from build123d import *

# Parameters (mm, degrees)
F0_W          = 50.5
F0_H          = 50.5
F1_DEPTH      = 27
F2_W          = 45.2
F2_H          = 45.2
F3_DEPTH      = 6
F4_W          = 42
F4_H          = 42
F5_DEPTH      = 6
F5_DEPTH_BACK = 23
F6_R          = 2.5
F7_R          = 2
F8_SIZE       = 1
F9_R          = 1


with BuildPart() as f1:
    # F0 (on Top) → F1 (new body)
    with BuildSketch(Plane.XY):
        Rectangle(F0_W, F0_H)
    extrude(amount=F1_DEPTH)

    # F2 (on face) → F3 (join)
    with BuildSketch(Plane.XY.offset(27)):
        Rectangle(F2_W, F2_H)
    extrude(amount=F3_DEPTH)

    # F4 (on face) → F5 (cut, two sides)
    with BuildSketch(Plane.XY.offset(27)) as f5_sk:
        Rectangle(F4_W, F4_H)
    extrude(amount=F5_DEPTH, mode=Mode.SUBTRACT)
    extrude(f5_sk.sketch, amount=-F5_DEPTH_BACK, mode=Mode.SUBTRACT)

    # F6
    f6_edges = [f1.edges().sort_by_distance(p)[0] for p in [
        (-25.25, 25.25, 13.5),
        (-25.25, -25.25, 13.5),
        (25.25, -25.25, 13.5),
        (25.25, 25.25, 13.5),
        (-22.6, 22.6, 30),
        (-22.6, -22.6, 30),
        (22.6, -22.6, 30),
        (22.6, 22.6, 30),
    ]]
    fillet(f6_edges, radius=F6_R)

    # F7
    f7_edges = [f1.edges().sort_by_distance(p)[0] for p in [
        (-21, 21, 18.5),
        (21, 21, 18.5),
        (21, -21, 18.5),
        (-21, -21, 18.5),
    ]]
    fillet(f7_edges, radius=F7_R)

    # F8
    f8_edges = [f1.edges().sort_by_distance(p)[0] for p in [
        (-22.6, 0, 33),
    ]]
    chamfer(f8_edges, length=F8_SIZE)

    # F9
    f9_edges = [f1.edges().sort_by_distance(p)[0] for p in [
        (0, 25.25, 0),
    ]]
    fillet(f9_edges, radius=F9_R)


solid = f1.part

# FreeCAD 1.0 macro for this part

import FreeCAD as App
import Part
import Sketcher


def edges_at(feature, points):
    """Names of the edges that pass closest to the given points."""
    edges = feature.Shape.Edges
    near = lambda p: min(range(len(edges)), key=lambda i: edges[i].distToShape(Part.Vertex(*p))[0])
    return sorted({f"Edge{near(p) + 1}" for p in points})


def add_polygon(sketch, points):
    """Adds a closed chain of lines whose ends are joined by coincident constraints."""
    first, n = sketch.GeometryCount, len(points)
    for a, b in zip(points, points[1:] + points[:1]):
        sketch.addGeometry(Part.LineSegment(App.Vector(*a, 0), App.Vector(*b, 0)), False)
    for i in range(n):
        sketch.addConstraint(Sketcher.Constraint("Coincident", first + i, 2, first + (i + 1) % n, 1))

doc = App.newDocument("Part")
params = doc.addObject("Spreadsheet::Sheet", "Params")
for row, (alias, value) in enumerate([
    ("sketch1_width", "50.5 mm"),
    ("pad1_length", "27 mm"),
    ("sketch2_width", "45.2 mm"),
    ("pad2_length", "6 mm"),
    ("sketch3_width", "42 mm"),
    ("pocket1_length", "6 mm"),
    ("pocket1_length2", "23 mm"),
    ("fillet_radius", "2.5 mm"),
    ("fillet2_radius", "2 mm"),
    ("chamfer_size", "1 mm"),
    ("fillet3_radius", "1 mm"),
], start=1):
    params.set(f"A{row}", alias)
    params.set(f"B{row}", "=" + value)
    params.setAlias(f"B{row}", alias)

body = doc.addObject("PartDesign::Body", "Body")

sketch1 = body.newObject("Sketcher::SketchObject", "Sketch")
sketch1.AttachmentSupport = (doc.getObject("XY_Plane"), [""])
sketch1.MapMode = "FlatFace"
add_polygon(sketch1, [(-25, 25), (-25, -25), (25, -25), (25, 25)])
sketch1.addConstraint(Sketcher.Constraint("Vertical", 0))
sketch1.addConstraint(Sketcher.Constraint("Horizontal", 1))
sketch1.addConstraint(Sketcher.Constraint("Vertical", 2))
sketch1.addConstraint(Sketcher.Constraint("Horizontal", 3))
sketch1.addConstraint(Sketcher.Constraint("Symmetric", 0, 2, 2, 2, -1, 1))
sketch1.addConstraint(Sketcher.Constraint("Equal", 3, 0))
sketch1.addConstraint(Sketcher.Constraint("DistanceX", 1, 1, 1, 2, 50.5))
sketch1.setExpression("Constraints[10]", "Params.sketch1_width")
pad1 = body.newObject("PartDesign::Pad", "Pad")
pad1.Profile = sketch1
pad1.setExpression("Length", "Params.pad1_length")

sketch2 = body.newObject("Sketcher::SketchObject", "Sketch001")
sketch2.AttachmentSupport = (doc.getObject("XY_Plane"), [""])
sketch2.MapMode = "FlatFace"
sketch2.AttachmentOffset = App.Placement(App.Vector(0, 0, 27), App.Rotation())
add_polygon(sketch2, [(-23, 23), (-23, -23), (23, -23), (23, 23)])
sketch2.addConstraint(Sketcher.Constraint("Vertical", 0))
sketch2.addConstraint(Sketcher.Constraint("Horizontal", 1))
sketch2.addConstraint(Sketcher.Constraint("Vertical", 2))
sketch2.addConstraint(Sketcher.Constraint("Horizontal", 3))
sketch2.addConstraint(Sketcher.Constraint("Symmetric", 0, 2, 2, 2, -1, 1))
sketch2.addConstraint(Sketcher.Constraint("Equal", 3, 0))
sketch2.addConstraint(Sketcher.Constraint("DistanceX", 1, 1, 1, 2, 45.2))
sketch2.setExpression("Constraints[10]", "Params.sketch2_width")
pad2 = body.newObject("PartDesign::Pad", "Pad001")
pad2.Profile = sketch2
pad2.setExpression("Length", "Params.pad2_length")

sketch3 = body.newObject("Sketcher::SketchObject", "Sketch002")
sketch3.AttachmentSupport = (doc.getObject("XY_Plane"), [""])
sketch3.MapMode = "FlatFace"
sketch3.AttachmentOffset = App.Placement(App.Vector(0, 0, 27), App.Rotation())
add_polygon(sketch3, [(-21, 21), (-21, -21), (21, -21), (21, 21)])
sketch3.addConstraint(Sketcher.Constraint("Vertical", 0))
sketch3.addConstraint(Sketcher.Constraint("Horizontal", 1))
sketch3.addConstraint(Sketcher.Constraint("Vertical", 2))
sketch3.addConstraint(Sketcher.Constraint("Horizontal", 3))
sketch3.addConstraint(Sketcher.Constraint("Symmetric", 0, 2, 2, 2, -1, 1))
sketch3.addConstraint(Sketcher.Constraint("Equal", 3, 0))
sketch3.addConstraint(Sketcher.Constraint("DistanceX", 1, 1, 1, 2, 42.0))
sketch3.setExpression("Constraints[10]", "Params.sketch3_width")
pocket1 = body.newObject("PartDesign::Pocket", "Pocket")
pocket1.Profile = sketch3
pocket1.Type = "TwoLengths"
pocket1.setExpression("Length", "Params.pocket1_length")
pocket1.setExpression("Length2", "Params.pocket1_length2")
pocket1.Reversed = True
doc.recompute()

fillet = body.newObject("PartDesign::Fillet", "Fillet")
fillet.Base = (pocket1, edges_at(pocket1, [
    (-25.25, 25.25, 13.5),
    (-25.25, -25.25, 13.5),
    (25.25, -25.25, 13.5),
    (25.25, 25.25, 13.5),
    (-22.6, 22.6, 30),
    (-22.6, -22.6, 30),
    (22.6, -22.6, 30),
    (22.6, 22.6, 30),
]))
fillet.setExpression("Radius", "Params.fillet_radius")
doc.recompute()

fillet2 = body.newObject("PartDesign::Fillet", "Fillet001")
fillet2.Base = (fillet, edges_at(fillet, [
    (-21, 21, 18.5),
    (21, 21, 18.5),
    (21, -21, 18.5),
    (-21, -21, 18.5),
]))
fillet2.setExpression("Radius", "Params.fillet2_radius")
doc.recompute()

chamfer = body.newObject("PartDesign::Chamfer", "Chamfer")
chamfer.Base = (fillet2, edges_at(fillet2, [(-22.6, 0, 33)]))
chamfer.setExpression("Size", "Params.chamfer_size")
doc.recompute()

fillet3 = body.newObject("PartDesign::Fillet", "Fillet002")
fillet3.Base = (chamfer, edges_at(chamfer, [(0, 25.25, 0)]))
fillet3.setExpression("Radius", "Params.fillet3_radius")

doc.recompute()
